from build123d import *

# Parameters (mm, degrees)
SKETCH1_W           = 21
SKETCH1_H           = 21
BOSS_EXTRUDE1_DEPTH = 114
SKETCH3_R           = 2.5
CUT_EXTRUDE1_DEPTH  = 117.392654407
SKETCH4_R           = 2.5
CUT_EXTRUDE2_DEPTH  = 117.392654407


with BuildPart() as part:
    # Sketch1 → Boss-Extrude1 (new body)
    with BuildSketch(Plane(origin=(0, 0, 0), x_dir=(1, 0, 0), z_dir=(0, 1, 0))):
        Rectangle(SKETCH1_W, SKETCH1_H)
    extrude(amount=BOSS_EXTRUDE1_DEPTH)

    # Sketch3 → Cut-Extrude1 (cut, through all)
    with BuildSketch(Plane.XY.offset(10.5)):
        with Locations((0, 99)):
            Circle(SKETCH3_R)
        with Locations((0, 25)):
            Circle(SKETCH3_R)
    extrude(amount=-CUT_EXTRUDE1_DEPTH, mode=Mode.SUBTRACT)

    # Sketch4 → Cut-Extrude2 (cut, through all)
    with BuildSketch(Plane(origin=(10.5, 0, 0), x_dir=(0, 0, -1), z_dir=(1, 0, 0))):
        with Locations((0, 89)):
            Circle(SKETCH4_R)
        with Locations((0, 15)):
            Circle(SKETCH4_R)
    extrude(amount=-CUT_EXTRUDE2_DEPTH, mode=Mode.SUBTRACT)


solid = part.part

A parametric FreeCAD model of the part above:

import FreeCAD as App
import Part
import Sketcher

doc = App.newDocument("Part")
body = doc.addObject("PartDesign::Body", "Body")

sketch1 = body.newObject("Sketcher::SketchObject", "Sketch")
sketch1.AttachmentSupport = (doc.getObject("XZ_Plane"), [""])
sketch1.MapMode = "FlatFace"
sketch1.addGeometry([
    Part.LineSegment(App.Vector(-10, -10, 0), App.Vector(-10, 10, 0)),
    Part.LineSegment(App.Vector(-10, 10, 0), App.Vector(10, 10, 0)),
    Part.LineSegment(App.Vector(10, 10, 0), App.Vector(10, -10, 0)),
    Part.LineSegment(App.Vector(10, -10, 0), App.Vector(-10, -10, 0)),
], False)
sketch1.addConstraint([
    Sketcher.Constraint("Coincident", 0, 2, 1, 1),
    Sketcher.Constraint("Coincident", 1, 2, 2, 1),
    Sketcher.Constraint("Coincident", 2, 2, 3, 1),
    Sketcher.Constraint("Coincident", 3, 2, 0, 1),
    Sketcher.Constraint("Vertical", 0),
    Sketcher.Constraint("Horizontal", 1),
    Sketcher.Constraint("Vertical", 2),
    Sketcher.Constraint("Horizontal", 3),
    Sketcher.Constraint("Symmetric", 0, 2, 2, 2, -1, 1),
    Sketcher.Constraint("Equal", 3, 0),
    Sketcher.Constraint("DistanceX", 1, 1, 1, 2, 21.0),
])
pad1 = body.newObject("PartDesign::Pad", "Pad")
pad1.Profile = sketch1
pad1.Length = 114
pad1.Reversed = True

sketch2 = body.newObject("Sketcher::SketchObject", "Sketch001")
sketch2.AttachmentSupport = (doc.getObject("XY_Plane"), [""])
sketch2.MapMode = "FlatFace"
sketch2.AttachmentOffset = App.Placement(App.Vector(0, 0, 10.5), App.Rotation())
sketch2.addGeometry([
    Part.Circle(App.Vector(0, 99, 0), App.Vector(0, 0, 1), 2.5),
    Part.Circle(App.Vector(0, 25, 0), App.Vector(0, 0, 1), 2.5),
], False)
sketch2.addConstraint([
    Sketcher.Constraint("Equal", 0, 1),
    Sketcher.Constraint("PointOnObject", 0, 3, -2),
    Sketcher.Constraint("PointOnObject", 1, 3, -2),
    Sketcher.Constraint("Diameter", 0, 5.0),
    Sketcher.Constraint("DistanceY", -1, 1, 0, 3, 99.0),
    Sketcher.Constraint("DistanceY", -1, 1, 1, 3, 25.0),
])
pocket1 = body.newObject("PartDesign::Pocket", "Pocket")
pocket1.Profile = sketch2
pocket1.Type = "ThroughAll"

sketch3 = body.newObject("Sketcher::SketchObject", "Sketch002")
sketch3.AttachmentSupport = (doc.getObject("YZ_Plane"), [""])
sketch3.MapMode = "FlatFace"
sketch3.AttachmentOffset = App.Placement(App.Vector(0, 0, 10.5), App.Rotation())
sketch3.addGeometry([
    Part.Circle(App.Vector(89, 0, 0), App.Vector(0, 0, 1), 2.5),
    Part.Circle(App.Vector(15, 0, 0), App.Vector(0, 0, 1), 2.5),
], False)
sketch3.addConstraint([
    Sketcher.Constraint("Equal", 0, 1),
    Sketcher.Constraint("PointOnObject", 0, 3, -1),
    Sketcher.Constraint("PointOnObject", 1, 3, -1),
    Sketcher.Constraint("Diameter", 0, 5.0),
    Sketcher.Constraint("DistanceX", -1, 1, 0, 3, 89.0),
    Sketcher.Constraint("DistanceX", -1, 1, 1, 3, 15.0),
])
pocket2 = body.newObject("PartDesign::Pocket", "Pocket001")
pocket2.Profile = sketch3
pocket2.Type = "ThroughAll"

doc.recompute()
